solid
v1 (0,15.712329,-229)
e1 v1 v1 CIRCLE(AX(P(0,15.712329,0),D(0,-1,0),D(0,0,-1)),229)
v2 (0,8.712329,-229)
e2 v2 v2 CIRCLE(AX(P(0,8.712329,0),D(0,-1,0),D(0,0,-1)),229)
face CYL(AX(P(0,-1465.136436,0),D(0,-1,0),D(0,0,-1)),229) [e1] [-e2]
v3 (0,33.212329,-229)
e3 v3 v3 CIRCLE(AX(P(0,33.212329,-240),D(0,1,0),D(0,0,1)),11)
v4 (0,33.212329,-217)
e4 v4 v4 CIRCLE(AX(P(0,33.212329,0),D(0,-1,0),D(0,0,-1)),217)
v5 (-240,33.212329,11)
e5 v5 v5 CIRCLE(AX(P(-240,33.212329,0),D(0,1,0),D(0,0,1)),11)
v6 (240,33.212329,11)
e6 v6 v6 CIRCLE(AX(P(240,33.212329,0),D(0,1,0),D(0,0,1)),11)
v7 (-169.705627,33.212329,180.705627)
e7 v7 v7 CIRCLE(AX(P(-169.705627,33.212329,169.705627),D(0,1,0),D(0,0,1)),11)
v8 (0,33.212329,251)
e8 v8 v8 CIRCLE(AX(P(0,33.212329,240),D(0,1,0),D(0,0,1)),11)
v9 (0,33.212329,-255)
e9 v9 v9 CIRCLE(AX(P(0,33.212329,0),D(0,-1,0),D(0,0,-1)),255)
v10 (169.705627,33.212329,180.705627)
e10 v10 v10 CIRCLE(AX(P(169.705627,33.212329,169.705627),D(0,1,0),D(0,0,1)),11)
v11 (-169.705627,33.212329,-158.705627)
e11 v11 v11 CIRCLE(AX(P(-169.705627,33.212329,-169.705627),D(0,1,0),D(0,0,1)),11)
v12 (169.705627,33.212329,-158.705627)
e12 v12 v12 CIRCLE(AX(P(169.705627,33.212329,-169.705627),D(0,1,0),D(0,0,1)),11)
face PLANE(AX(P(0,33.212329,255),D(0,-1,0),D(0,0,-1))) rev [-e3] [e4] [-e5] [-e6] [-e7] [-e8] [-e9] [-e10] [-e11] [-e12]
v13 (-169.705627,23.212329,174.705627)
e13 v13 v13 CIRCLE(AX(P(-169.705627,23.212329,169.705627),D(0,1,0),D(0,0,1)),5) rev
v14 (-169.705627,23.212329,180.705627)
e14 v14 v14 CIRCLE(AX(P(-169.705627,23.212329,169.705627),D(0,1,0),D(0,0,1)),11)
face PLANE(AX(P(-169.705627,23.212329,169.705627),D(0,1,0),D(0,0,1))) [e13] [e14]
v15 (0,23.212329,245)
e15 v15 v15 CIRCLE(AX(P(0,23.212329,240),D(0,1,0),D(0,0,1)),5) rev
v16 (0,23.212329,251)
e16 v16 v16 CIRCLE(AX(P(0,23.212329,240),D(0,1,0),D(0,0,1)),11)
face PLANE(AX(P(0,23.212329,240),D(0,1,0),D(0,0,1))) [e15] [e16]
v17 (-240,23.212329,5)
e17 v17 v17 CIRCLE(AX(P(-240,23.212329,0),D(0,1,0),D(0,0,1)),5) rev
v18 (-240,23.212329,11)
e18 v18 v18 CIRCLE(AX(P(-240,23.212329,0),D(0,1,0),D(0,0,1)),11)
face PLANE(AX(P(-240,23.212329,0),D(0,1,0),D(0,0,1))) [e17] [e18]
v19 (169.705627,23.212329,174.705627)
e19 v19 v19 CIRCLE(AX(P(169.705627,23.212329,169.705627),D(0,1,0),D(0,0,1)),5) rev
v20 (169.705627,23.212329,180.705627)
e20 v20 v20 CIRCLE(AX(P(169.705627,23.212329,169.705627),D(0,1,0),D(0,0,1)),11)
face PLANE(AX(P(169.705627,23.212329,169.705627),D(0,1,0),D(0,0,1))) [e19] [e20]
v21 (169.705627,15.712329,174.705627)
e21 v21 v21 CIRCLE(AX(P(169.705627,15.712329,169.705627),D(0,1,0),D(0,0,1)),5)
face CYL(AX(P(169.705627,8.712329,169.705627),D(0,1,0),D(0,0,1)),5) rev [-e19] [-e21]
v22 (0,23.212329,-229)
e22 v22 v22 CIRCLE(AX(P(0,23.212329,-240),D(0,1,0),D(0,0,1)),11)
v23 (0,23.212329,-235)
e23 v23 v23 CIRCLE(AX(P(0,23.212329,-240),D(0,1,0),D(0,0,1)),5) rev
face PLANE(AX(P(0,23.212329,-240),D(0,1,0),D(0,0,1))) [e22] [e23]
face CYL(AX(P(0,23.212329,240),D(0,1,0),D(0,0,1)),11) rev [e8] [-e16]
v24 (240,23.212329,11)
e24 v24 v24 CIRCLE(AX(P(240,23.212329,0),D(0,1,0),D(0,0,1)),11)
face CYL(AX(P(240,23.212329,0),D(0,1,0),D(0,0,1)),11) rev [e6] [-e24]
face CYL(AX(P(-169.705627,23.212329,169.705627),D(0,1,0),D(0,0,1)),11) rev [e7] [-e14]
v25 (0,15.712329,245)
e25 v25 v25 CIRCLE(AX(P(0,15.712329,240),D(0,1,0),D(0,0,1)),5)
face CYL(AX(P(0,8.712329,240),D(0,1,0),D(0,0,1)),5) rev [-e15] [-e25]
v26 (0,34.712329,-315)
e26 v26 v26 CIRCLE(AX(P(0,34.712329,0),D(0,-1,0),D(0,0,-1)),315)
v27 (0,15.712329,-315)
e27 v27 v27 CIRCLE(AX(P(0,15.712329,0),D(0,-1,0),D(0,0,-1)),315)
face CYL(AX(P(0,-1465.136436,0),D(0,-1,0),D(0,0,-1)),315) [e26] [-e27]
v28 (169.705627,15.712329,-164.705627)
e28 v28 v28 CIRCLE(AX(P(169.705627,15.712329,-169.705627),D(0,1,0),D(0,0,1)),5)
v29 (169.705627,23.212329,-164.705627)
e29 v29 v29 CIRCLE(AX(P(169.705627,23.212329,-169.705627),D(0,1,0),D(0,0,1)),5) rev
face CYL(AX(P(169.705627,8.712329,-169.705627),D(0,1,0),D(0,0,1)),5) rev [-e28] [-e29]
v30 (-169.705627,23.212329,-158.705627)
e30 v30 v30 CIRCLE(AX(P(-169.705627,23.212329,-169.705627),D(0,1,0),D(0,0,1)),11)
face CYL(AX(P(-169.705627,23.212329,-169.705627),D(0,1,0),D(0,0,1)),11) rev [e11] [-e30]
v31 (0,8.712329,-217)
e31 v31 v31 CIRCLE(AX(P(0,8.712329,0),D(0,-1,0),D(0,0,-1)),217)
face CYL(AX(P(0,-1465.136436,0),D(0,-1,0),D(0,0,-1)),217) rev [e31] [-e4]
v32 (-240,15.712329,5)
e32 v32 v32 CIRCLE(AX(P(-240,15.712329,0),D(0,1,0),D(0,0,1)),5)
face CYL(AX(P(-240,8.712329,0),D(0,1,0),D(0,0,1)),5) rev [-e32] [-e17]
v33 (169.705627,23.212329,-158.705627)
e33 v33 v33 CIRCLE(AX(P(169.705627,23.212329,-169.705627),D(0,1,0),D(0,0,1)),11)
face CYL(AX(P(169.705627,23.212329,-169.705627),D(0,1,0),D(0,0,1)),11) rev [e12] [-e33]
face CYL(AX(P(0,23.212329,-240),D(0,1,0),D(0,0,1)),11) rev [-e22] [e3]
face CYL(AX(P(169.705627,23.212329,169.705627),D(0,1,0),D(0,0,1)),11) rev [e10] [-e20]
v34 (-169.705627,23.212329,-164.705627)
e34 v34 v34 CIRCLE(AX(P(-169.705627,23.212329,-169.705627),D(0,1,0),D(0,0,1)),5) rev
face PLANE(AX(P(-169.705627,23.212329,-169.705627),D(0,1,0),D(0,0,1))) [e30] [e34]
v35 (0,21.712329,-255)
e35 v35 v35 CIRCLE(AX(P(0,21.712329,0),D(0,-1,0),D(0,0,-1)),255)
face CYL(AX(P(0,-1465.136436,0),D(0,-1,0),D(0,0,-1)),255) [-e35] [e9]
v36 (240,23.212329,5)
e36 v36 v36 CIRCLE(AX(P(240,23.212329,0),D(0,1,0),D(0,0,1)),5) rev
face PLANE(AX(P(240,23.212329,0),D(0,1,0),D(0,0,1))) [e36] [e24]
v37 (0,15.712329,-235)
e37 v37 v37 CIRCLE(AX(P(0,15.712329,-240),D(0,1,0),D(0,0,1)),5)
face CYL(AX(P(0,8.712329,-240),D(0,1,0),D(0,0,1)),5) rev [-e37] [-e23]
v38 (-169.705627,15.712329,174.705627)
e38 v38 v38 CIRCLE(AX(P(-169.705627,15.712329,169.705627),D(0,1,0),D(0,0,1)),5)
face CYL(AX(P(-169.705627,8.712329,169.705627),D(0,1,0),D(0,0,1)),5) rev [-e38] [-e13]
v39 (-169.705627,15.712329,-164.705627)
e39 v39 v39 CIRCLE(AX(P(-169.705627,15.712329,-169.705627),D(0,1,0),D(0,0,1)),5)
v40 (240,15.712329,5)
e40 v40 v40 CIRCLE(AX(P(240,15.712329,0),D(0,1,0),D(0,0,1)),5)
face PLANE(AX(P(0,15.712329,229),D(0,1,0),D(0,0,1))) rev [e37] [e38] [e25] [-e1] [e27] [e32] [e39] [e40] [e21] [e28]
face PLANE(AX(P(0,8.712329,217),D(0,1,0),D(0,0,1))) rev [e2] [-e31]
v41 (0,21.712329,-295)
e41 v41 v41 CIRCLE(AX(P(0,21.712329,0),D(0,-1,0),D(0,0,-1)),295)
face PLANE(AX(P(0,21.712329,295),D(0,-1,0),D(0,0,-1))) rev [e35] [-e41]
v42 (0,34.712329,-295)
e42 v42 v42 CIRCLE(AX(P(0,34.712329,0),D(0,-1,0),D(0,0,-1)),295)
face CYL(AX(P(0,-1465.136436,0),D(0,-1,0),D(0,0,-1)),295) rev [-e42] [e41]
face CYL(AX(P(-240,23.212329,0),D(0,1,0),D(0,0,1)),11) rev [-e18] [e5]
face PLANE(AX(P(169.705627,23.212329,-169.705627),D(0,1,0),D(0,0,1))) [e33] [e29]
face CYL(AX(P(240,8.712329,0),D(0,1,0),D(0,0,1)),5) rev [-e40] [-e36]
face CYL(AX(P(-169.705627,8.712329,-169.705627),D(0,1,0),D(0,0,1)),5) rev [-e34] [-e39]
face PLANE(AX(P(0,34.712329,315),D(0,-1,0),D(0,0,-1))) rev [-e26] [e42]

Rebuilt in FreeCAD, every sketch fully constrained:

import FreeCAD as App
import Part
import Sketcher


def add_polygon(sketch, points):
    """Adds a closed chain of lines whose ends are joined by coincident constraints."""
    first, n = sketch.GeometryCount, len(points)
    for a, b in zip(points, points[1:] + points[:1]):
        sketch.addGeometry(Part.LineSegment(App.Vector(*a, 0), App.Vector(*b, 0)), False)
    for i in range(n):
        sketch.addConstraint(Sketcher.Constraint("Coincident", first + i, 2, first + (i + 1) % n, 1))

doc = App.newDocument("Part")
body = doc.addObject("PartDesign::Body", "Body")

# Sketch on YZ plane
sketch1 = body.newObject("Sketcher::SketchObject", "Sketch")
sketch1.AttachmentSupport = (doc.getObject("YZ_Plane"), [""])
sketch1.MapMode = "FlatFace"
add_polygon(sketch1, [(35, 295), (35, 315), (16, 315), (16, 229), (9, 229), (9, 217), (33, 217), (33, 255), (22, 255), (22, 295)])  # lines 0-9
sketch1.addConstraint([
    Sketcher.Constraint("Vertical", 0),
    Sketcher.Constraint("Horizontal", 1),
    Sketcher.Constraint("Vertical", 2),
    Sketcher.Constraint("Horizontal", 3),
    Sketcher.Constraint("Vertical", 4),
    Sketcher.Constraint("Horizontal", 5),
    Sketcher.Constraint("Vertical", 6),
    Sketcher.Constraint("Horizontal", 7),
    Sketcher.Constraint("Vertical", 8),
    Sketcher.Constraint("Horizontal", 9),
    Sketcher.Constraint("DistanceX", 1, 2, 1, 1, 19.0),
    Sketcher.Constraint("DistanceX", 3, 2, 3, 1, 7.0),
    Sketcher.Constraint("DistanceX", 9, 1, 9, 2, 13.0),
    Sketcher.Constraint("DistanceY", 0, 1, 0, 2, 20.0),
    Sketcher.Constraint("DistanceY", 2, 2, 2, 1, 86.0),
    Sketcher.Constraint("DistanceY", 4, 2, 4, 1, 12.0),
    Sketcher.Constraint("DistanceY", 6, 1, 6, 2, 38.0),
    Sketcher.Constraint("DistanceX", 5, 1, 5, 2, 24.5),
    Sketcher.Constraint("DistanceY", -1, 1, 0, 2, 315.0),
    Sketcher.Constraint("DistanceX", -1, 1, 0, 2, 34.712329),
])
revolution = body.newObject("PartDesign::Revolution", "Revolution")
revolution.Profile = sketch1
revolution.ReferenceAxis = (sketch1, ["H_Axis"])
revolution.Angle = 360

# Sketch on XZ plane
sketch2 = body.newObject("Sketcher::SketchObject", "Sketch001")
sketch2.AttachmentSupport = (doc.getObject("XZ_Plane"), [""])
sketch2.MapMode = "FlatFace"
sketch2.AttachmentOffset = App.Placement(App.Vector(0, 0, -33.212329), App.Rotation())
sketch2.addGeometry([
    Part.Circle(App.Vector(0, -240, 0), App.Vector(0, 0, 1), 5),  # 0
    Part.Circle(App.Vector(170, -170, 0), App.Vector(0, 0, 1), 5),  # 1
    Part.Circle(App.Vector(240, 0, 0), App.Vector(0, 0, 1), 5),  # 2
    Part.Circle(App.Vector(170, 170, 0), App.Vector(0, 0, 1), 5),  # 3
    Part.Circle(App.Vector(0, 240, 0), App.Vector(0, 0, 1), 5),  # 4
    Part.Circle(App.Vector(-170, 170, 0), App.Vector(0, 0, 1), 5),  # 5
    Part.Circle(App.Vector(-240, 0, 0), App.Vector(0, 0, 1), 5),  # 6
    Part.Circle(App.Vector(-170, -170, 0), App.Vector(0, 0, 1), 5),  # 7
], False)
sketch2.addConstraint([
    Sketcher.Constraint("Equal", 0, 1),
    Sketcher.Constraint("Equal", 1, 2),
    Sketcher.Constraint("Equal", 2, 3),
    Sketcher.Constraint("Equal", 3, 4),
    Sketcher.Constraint("Equal", 4, 5),
    Sketcher.Constraint("Equal", 5, 6),
    Sketcher.Constraint("Equal", 6, 7),
    Sketcher.Constraint("Symmetric", 0, 3, 4, 3, -1, 1),
    Sketcher.Constraint("Symmetric", 1, 3, 5, 3, -1, 1),
    Sketcher.Constraint("Symmetric", 2, 3, 6, 3, -1, 1),
    Sketcher.Constraint("Symmetric", 3, 3, 7, 3, -1, 1),
    Sketcher.Constraint("Symmetric", 3, 3, 5, 3, -2),
    Sketcher.Constraint("PointOnObject", 0, 3, -2),
    Sketcher.Constraint("PointOnObject", 2, 3, -1),
    Sketcher.Constraint("Diameter", 0, 10.0),
    Sketcher.Constraint("DistanceY", 0, 3, -1, 1, 240.0),
    Sketcher.Constraint("DistanceX", -1, 1, 2, 3, 240.0),
    Sketcher.Constraint("DistanceX", -1, 1, 1, 3, 169.705627),
    Sketcher.Constraint("DistanceY", 1, 3, -1, 1, 169.705627),
])
pocket1 = body.newObject("PartDesign::Pocket", "Pocket")
pocket1.Profile = sketch2
pocket1.Type = "ThroughAll"
pocket1.Reversed = True

# Sketch on XZ plane
sketch3 = body.newObject("Sketcher::SketchObject", "Sketch002")
sketch3.AttachmentSupport = (doc.getObject("XZ_Plane"), [""])
sketch3.MapMode = "FlatFace"
sketch3.AttachmentOffset = App.Placement(App.Vector(0, 0, -33.212329), App.Rotation())
sketch3.addGeometry([
    Part.Circle(App.Vector(0, -240, 0), App.Vector(0, 0, 1), 11),  # 0
    Part.Circle(App.Vector(170, -170, 0), App.Vector(0, 0, 1), 11),  # 1
    Part.Circle(App.Vector(240, 0, 0), App.Vector(0, 0, 1), 11),  # 2
    Part.Circle(App.Vector(170, 170, 0), App.Vector(0, 0, 1), 11),  # 3
    Part.Circle(App.Vector(0, 240, 0), App.Vector(0, 0, 1), 11),  # 4
    Part.Circle(App.Vector(-170, 170, 0), App.Vector(0, 0, 1), 11),  # 5
    Part.Circle(App.Vector(-240, 0, 0), App.Vector(0, 0, 1), 11),  # 6
    Part.Circle(App.Vector(-170, -170, 0), App.Vector(0, 0, 1), 11),  # 7
], False)
sketch3.addConstraint([
    Sketcher.Constraint("Equal", 0, 1),
    Sketcher.Constraint("Equal", 1, 2),
    Sketcher.Constraint("Equal", 2, 3),
    Sketcher.Constraint("Equal", 3, 4),
    Sketcher.Constraint("Equal", 4, 5),
    Sketcher.Constraint("Equal", 5, 6),
    Sketcher.Constraint("Equal", 6, 7),
    Sketcher.Constraint("Symmetric", 0, 3, 4, 3, -1, 1),
    Sketcher.Constraint("Symmetric", 1, 3, 5, 3, -1, 1),
    Sketcher.Constraint("Symmetric", 2, 3, 6, 3, -1, 1),
    Sketcher.Constraint("Symmetric", 3, 3, 7, 3, -1, 1),
    Sketcher.Constraint("Symmetric", 3, 3, 5, 3, -2),
    Sketcher.Constraint("PointOnObject", 0, 3, -2),
    Sketcher.Constraint("PointOnObject", 2, 3, -1),
    Sketcher.Constraint("Diameter", 0, 22.0),
    Sketcher.Constraint("DistanceY", 0, 3, -1, 1, 240.0),
    Sketcher.Constraint("DistanceX", -1, 1, 2, 3, 240.0),
    Sketcher.Constraint("DistanceX", -1, 1, 1, 3, 169.705627),
    Sketcher.Constraint("DistanceY", 1, 3, -1, 1, 169.705627),
])
pocket2 = body.newObject("PartDesign::Pocket", "Pocket001")
pocket2.Profile = sketch3
pocket2.Length = 10
pocket2.Reversed = True

doc.recompute()
